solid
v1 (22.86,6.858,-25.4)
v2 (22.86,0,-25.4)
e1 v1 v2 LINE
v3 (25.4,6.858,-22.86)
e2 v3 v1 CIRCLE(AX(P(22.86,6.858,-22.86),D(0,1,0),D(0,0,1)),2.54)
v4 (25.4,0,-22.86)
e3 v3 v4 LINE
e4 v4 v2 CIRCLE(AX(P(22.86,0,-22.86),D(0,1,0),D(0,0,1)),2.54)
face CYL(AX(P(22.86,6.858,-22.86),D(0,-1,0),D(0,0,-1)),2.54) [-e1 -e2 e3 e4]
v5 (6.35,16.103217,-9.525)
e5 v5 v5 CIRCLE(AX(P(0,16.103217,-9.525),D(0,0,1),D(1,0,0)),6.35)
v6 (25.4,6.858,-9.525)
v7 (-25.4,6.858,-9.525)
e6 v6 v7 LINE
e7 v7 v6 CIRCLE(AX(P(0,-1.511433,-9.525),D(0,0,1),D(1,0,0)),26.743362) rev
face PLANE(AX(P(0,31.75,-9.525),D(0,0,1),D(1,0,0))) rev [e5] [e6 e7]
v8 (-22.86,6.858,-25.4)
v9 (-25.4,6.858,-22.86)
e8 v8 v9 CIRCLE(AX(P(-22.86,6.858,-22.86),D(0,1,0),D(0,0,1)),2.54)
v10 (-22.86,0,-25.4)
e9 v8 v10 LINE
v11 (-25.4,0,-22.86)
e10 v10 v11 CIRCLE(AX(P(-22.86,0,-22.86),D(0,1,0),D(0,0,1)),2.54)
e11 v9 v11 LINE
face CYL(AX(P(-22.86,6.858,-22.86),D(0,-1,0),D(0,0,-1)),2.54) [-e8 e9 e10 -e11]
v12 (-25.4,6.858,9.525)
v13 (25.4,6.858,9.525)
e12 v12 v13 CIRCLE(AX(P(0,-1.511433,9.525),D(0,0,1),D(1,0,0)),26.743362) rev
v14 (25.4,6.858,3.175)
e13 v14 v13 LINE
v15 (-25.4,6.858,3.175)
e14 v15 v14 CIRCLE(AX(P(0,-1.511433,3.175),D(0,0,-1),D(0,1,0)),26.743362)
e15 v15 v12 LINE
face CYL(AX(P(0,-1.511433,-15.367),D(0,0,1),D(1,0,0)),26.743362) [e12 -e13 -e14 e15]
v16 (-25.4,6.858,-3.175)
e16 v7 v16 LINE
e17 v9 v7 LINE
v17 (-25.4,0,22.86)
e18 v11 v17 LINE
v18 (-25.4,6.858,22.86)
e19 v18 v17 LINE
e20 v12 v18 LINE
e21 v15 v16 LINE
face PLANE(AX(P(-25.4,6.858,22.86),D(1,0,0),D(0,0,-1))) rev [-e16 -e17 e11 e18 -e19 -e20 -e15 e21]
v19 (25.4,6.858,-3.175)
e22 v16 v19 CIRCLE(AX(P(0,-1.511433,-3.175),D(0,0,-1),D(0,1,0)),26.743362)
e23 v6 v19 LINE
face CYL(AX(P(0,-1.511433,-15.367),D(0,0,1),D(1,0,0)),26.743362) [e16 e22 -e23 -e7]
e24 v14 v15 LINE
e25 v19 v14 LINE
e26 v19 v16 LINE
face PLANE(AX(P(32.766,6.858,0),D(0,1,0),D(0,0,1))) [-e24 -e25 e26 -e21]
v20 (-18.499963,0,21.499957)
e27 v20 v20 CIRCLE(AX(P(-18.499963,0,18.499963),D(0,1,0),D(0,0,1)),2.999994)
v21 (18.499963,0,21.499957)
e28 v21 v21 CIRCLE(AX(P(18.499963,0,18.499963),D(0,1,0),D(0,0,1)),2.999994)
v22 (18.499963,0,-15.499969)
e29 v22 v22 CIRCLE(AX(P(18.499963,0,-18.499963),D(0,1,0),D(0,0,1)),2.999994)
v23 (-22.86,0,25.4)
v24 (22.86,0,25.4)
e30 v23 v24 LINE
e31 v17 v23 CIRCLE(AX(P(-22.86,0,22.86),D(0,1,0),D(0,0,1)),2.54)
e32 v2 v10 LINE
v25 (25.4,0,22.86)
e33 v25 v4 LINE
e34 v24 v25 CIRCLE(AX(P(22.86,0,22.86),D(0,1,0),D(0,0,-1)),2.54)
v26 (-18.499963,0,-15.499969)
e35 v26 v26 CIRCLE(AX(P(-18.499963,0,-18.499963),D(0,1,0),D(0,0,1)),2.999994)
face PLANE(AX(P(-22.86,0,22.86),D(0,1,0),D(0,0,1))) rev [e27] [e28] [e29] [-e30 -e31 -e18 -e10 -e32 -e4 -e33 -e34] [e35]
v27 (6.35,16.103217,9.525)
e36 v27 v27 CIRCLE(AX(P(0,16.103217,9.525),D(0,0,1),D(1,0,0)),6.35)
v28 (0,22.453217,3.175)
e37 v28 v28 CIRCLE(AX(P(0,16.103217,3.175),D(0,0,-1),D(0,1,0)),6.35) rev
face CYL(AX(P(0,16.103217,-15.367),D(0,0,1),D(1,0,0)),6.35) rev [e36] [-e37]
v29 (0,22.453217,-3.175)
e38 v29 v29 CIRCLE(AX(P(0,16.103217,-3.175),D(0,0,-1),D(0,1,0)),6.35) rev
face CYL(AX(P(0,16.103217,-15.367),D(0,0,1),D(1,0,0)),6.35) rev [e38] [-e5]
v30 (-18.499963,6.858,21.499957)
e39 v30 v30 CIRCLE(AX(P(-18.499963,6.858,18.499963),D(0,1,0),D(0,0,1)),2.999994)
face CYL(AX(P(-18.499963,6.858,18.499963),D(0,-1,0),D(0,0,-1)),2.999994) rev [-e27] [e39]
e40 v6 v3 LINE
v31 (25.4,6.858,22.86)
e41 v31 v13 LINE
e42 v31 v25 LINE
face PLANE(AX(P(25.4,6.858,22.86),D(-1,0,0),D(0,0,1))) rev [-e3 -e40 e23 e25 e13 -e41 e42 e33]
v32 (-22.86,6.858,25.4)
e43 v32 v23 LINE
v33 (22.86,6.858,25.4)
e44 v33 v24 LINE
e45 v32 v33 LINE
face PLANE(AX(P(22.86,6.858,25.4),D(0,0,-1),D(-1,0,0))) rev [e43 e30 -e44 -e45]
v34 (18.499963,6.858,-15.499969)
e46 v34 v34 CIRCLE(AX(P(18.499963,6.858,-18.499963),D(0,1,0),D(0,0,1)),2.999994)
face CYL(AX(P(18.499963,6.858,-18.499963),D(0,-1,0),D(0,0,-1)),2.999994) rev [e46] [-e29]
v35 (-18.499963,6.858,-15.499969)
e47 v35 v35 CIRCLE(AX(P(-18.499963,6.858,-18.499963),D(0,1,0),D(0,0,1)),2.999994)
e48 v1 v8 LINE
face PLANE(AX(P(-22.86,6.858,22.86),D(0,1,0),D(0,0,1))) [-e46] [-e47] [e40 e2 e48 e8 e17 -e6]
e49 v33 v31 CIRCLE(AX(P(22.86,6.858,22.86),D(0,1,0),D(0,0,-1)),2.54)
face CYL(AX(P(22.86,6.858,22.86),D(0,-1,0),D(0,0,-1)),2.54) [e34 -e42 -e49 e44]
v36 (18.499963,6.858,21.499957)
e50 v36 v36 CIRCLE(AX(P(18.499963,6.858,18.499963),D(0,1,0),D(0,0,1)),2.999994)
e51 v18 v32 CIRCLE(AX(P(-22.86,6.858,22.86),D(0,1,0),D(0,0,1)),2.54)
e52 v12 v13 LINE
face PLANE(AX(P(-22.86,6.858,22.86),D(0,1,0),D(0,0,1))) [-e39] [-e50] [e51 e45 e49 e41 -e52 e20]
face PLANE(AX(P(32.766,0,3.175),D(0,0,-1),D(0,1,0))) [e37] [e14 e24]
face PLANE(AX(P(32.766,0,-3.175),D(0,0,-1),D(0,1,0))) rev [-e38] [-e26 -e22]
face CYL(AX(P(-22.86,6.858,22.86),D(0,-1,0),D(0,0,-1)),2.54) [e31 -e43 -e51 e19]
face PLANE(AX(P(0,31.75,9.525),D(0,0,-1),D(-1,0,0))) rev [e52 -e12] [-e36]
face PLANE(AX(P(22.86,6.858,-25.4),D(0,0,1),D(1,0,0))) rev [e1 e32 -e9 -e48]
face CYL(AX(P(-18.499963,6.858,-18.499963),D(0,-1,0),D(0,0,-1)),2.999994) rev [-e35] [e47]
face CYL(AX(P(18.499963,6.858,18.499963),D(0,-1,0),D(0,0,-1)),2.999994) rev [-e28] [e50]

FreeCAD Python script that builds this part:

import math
import FreeCAD as App
import Part
import Sketcher
Q = App.Units.Quantity

doc = App.newDocument("Part")
body = doc.addObject("PartDesign::Body", "Body")

sketch1 = doc.addObject("Sketcher::SketchObject", "Sketch")
body.addObject(sketch1)
sketch1.AttachmentSupport = (doc.XZ_Plane, [""])
sketch1.MapMode = "FlatFace"
sketch1.addGeometry(Part.LineSegment(App.Vector(-22.86, 25.4, 0), App.Vector(22.86, 25.4, 0)), False)
sketch1.addGeometry(Part.ArcOfCircle(Part.Circle(App.Vector(22.86, 22.86, 0), App.Vector(0, 0, 1), 2.54), math.radians(0), math.radians(90)), False)
sketch1.addGeometry(Part.LineSegment(App.Vector(25.4, 22.86, 0), App.Vector(25.4, -22.86, 0)), False)
sketch1.addGeometry(Part.ArcOfCircle(Part.Circle(App.Vector(22.86, -22.86, 0), App.Vector(0, 0, 1), 2.54), math.radians(-90), math.radians(0)), False)
sketch1.addGeometry(Part.LineSegment(App.Vector(22.86, -25.4, 0), App.Vector(-22.86, -25.4, 0)), False)
sketch1.addGeometry(Part.ArcOfCircle(Part.Circle(App.Vector(-22.86, -22.86, 0), App.Vector(0, 0, 1), 2.54), math.radians(-180), math.radians(-90)), False)
sketch1.addGeometry(Part.LineSegment(App.Vector(-25.4, -22.86, 0), App.Vector(-25.4, 22.86, 0)), False)
sketch1.addGeometry(Part.ArcOfCircle(Part.Circle(App.Vector(-22.86, 22.86, 0), App.Vector(0, 0, 1), 2.54), math.radians(90), math.radians(180)), False)
sketch1.addGeometry(Part.Circle(App.Vector(18.499963, 18.499963, 0), App.Vector(0, 0, 1), 2.999994), False)
sketch1.addGeometry(Part.Circle(App.Vector(-18.499963, 18.499963, 0), App.Vector(0, 0, 1), 2.999994), False)
sketch1.addGeometry(Part.Circle(App.Vector(18.499963, -18.499963, 0), App.Vector(0, 0, 1), 2.999994), False)
sketch1.addGeometry(Part.Circle(App.Vector(-18.499963, -18.499963, 0), App.Vector(0, 0, 1), 2.999994), False)
sketch1.addConstraint(Sketcher.Constraint("Tangent", 0, 2, 1, 2))
sketch1.addConstraint(Sketcher.Constraint("Tangent", 1, 1, 2, 1))
sketch1.addConstraint(Sketcher.Constraint("Tangent", 2, 2, 3, 2))
sketch1.addConstraint(Sketcher.Constraint("Tangent", 3, 1, 4, 1))
sketch1.addConstraint(Sketcher.Constraint("Tangent", 4, 2, 5, 2))
sketch1.addConstraint(Sketcher.Constraint("Tangent", 5, 1, 6, 1))
sketch1.addConstraint(Sketcher.Constraint("Tangent", 6, 2, 7, 2))
sketch1.addConstraint(Sketcher.Constraint("Tangent", 7, 1, 0, 1))
sketch1.addConstraint(Sketcher.Constraint("Horizontal", 0))
sketch1.addConstraint(Sketcher.Constraint("Vertical", 2))
sketch1.addConstraint(Sketcher.Constraint("Horizontal", 4))
sketch1.addConstraint(Sketcher.Constraint("Vertical", 6))
sketch1.addConstraint(Sketcher.Constraint("Equal", 1, 3))
sketch1.addConstraint(Sketcher.Constraint("Equal", 3, 5))
sketch1.addConstraint(Sketcher.Constraint("Equal", 5, 7))
sketch1.addConstraint(Sketcher.Constraint("Equal", 8, 9))
sketch1.addConstraint(Sketcher.Constraint("Equal", 9, 10))
sketch1.addConstraint(Sketcher.Constraint("Equal", 10, 11))
sketch1.addConstraint(Sketcher.Constraint("Symmetric", 1, 3, 5, 3, -1, 1))
sketch1.addConstraint(Sketcher.Constraint("Symmetric", 9, 3, 10, 3, -1, 1))
sketch1.addConstraint(Sketcher.Constraint("Symmetric", 8, 3, 11, 3, -1, 1))
sketch1.addConstraint(Sketcher.Constraint("Symmetric", 8, 3, 9, 3, -2))
sketch1.addConstraint(Sketcher.Constraint("Equal", 4, 2))
sketch1.addConstraint(Sketcher.Constraint("Radius", 1, Q("0.1 in")))
sketch1.addConstraint(Sketcher.Constraint("DistanceX", 0, 1, 0, 2, Q("1.8 in")))
sketch1.addConstraint(Sketcher.Constraint("Diameter", 8, Q("5.999988 mm")))
sketch1.addConstraint(Sketcher.Constraint("DistanceX", -1, 1, 8, 3, Q("18.499963 mm")))
sketch1.addConstraint(Sketcher.Constraint("DistanceY", -1, 1, 8, 3, Q("18.499963 mm")))
pad1 = doc.addObject("PartDesign::Pad", "Pad")
body.addObject(pad1)
pad1.Profile = sketch1
pad1.Length = Q("0.27 in")
pad1.Reversed = True

sketch2 = doc.addObject("Sketcher::SketchObject", "Sketch001")
body.addObject(sketch2)
sketch2.AttachmentSupport = (doc.XZ_Plane, [""])
sketch2.MapMode = "FlatFace"
sketch2.AttachmentOffset = App.Placement(App.Vector(0, 0, -0.27 * 25.4), App.Rotation())
sketch2.addGeometry(Part.LineSegment(App.Vector(-25, 10, 0), App.Vector(25, 10, 0)), False)
sketch2.addGeometry(Part.LineSegment(App.Vector(25, 10, 0), App.Vector(25, -10, 0)), False)
sketch2.addGeometry(Part.LineSegment(App.Vector(25, -10, 0), App.Vector(-25, -10, 0)), False)
sketch2.addGeometry(Part.LineSegment(App.Vector(-25, -10, 0), App.Vector(-25, 10, 0)), False)
sketch2.addConstraint(Sketcher.Constraint("Coincident", 0, 2, 1, 1))
sketch2.addConstraint(Sketcher.Constraint("Coincident", 1, 2, 2, 1))
sketch2.addConstraint(Sketcher.Constraint("Coincident", 2, 2, 3, 1))
sketch2.addConstraint(Sketcher.Constraint("Coincident", 3, 2, 0, 1))
sketch2.addConstraint(Sketcher.Constraint("Horizontal", 0))
sketch2.addConstraint(Sketcher.Constraint("Vertical", 1))
sketch2.addConstraint(Sketcher.Constraint("Horizontal", 2))
sketch2.addConstraint(Sketcher.Constraint("Vertical", 3))
sketch2.addConstraint(Sketcher.Constraint("Symmetric", 0, 2, 2, 2, -1, 1))
sketch2.addConstraint(Sketcher.Constraint("DistanceX", 0, 1, 0, 2, Q("2 in")))
sketch2.addConstraint(Sketcher.Constraint("DistanceY", 1, 2, 1, 1, Q("0.75 in")))
pad2 = doc.addObject("PartDesign::Pad", "Pad001")
body.addObject(pad2)
pad2.Profile = sketch2
pad2.Length = Q("0.98 in")
pad2.Reversed = True

sketch3 = doc.addObject("Sketcher::SketchObject", "Sketch002")
body.addObject(sketch3)
sketch3.AttachmentSupport = (doc.XY_Plane, [""])
sketch3.MapMode = "FlatFace"
sketch3.AttachmentOffset = App.Placement(App.Vector(0, 0, 0.375 * 25.4), App.Rotation())
sketch3.addGeometry(Part.ArcOfCircle(Part.Circle(App.Vector(0, 16, 0), App.Vector(0, 0, 1), 6), math.radians(0), math.radians(90)), False)
sketch3.addGeometry(Part.ArcOfCircle(Part.Circle(App.Vector(0, 16, 0), App.Vector(0, 0, 1), 6), math.radians(90), math.radians(270)), False)
sketch3.addGeometry(Part.ArcOfCircle(Part.Circle(App.Vector(0, 16, 0), App.Vector(0, 0, 1), 6), math.radians(-90), math.radians(0)), False)
sketch3.addGeometry(Part.LineSegment(App.Vector(25, 32, 0), App.Vector(-25, 32, 0)), False)
sketch3.addGeometry(Part.LineSegment(App.Vector(-25, 32, 0), App.Vector(-25, 7, 0)), False)
sketch3.addGeometry(Part.ArcOfCircle(Part.Circle(App.Vector(0, -2, 0), App.Vector(0, 0, 1), 27), math.radians(90), math.radians(162)), False)
sketch3.addGeometry(Part.ArcOfCircle(Part.Circle(App.Vector(0, -2, 0), App.Vector(0, 0, 1), 27), math.radians(18), math.radians(90)), False)
sketch3.addGeometry(Part.LineSegment(App.Vector(25, 7, 0), App.Vector(25, 32, 0)), False)
sketch3.addConstraint(Sketcher.Constraint("Tangent", 0, 2, 1, 1))
sketch3.addConstraint(Sketcher.Constraint("Tangent", 1, 2, 2, 1))
sketch3.addConstraint(Sketcher.Constraint("Tangent", 2, 2, 0, 1))
sketch3.addConstraint(Sketcher.Constraint("Coincident", 3, 2, 4, 1))
sketch3.addConstraint(Sketcher.Constraint("Coincident", 4, 2, 5, 2))
sketch3.addConstraint(Sketcher.Constraint("Tangent", 5, 1, 6, 2))
sketch3.addConstraint(Sketcher.Constraint("Coincident", 6, 1, 7, 1))
sketch3.addConstraint(Sketcher.Constraint("Coincident", 7, 2, 3, 1))
sketch3.addConstraint(Sketcher.Constraint("Horizontal", 3))
sketch3.addConstraint(Sketcher.Constraint("Vertical", 4))
sketch3.addConstraint(Sketcher.Constraint("Vertical", 7))
sketch3.addConstraint(Sketcher.Constraint("Equal", 5, 6))
sketch3.addConstraint(Sketcher.Constraint("Symmetric", 4, 2, 6, 1, -2))
sketch3.addConstraint(Sketcher.Constraint("PointOnObject", 0, 3, -2))
sketch3.addConstraint(Sketcher.Constraint("PointOnObject", 0, 2, -2))
sketch3.addConstraint(Sketcher.Constraint("PointOnObject", 1, 2, -2))
sketch3.addConstraint(Sketcher.Constraint("PointOnObject", 5, 1, -2))
sketch3.addConstraint(Sketcher.Constraint("Horizontal", 1, 3, 2, 2))
sketch3.addConstraint(Sketcher.Constraint("DistanceX", 3, 2, 3, 1, Q("2 in")))
sketch3.addConstraint(Sketcher.Constraint("Radius", 0, Q("0.25 in")))
sketch3.addConstraint(Sketcher.Constraint("DistanceY", 4, 2, 4, 1, Q("0.98 in")))
sketch3.addConstraint(Sketcher.Constraint("DistanceY", -1, 1, 3, 2, Q("1.25 in")))
sketch3.addConstraint(Sketcher.Constraint("Radius", 5, Q("26.743362 mm")))
sketch3.addConstraint(Sketcher.Constraint("DistanceY", 5, 3, 2, 3, Q("17.614651 mm")))
pocket1 = doc.addObject("PartDesign::Pocket", "Pocket")
body.addObject(pocket1)
pocket1.Profile = sketch3
pocket1.Length = Q("0.98 in")

sketch4 = doc.addObject("Sketcher::SketchObject", "Sketch003")
body.addObject(sketch4)
sketch4.AttachmentSupport = (doc.YZ_Plane, [""])
sketch4.MapMode = "FlatFace"
sketch4.AttachmentOffset = App.Placement(App.Vector(0, 0, -1 * 25.4), App.Rotation())
sketch4.addGeometry(Part.LineSegment(App.Vector(25, -3, 0), App.Vector(7, -3, 0)), False)
sketch4.addGeometry(Part.LineSegment(App.Vector(7, -3, 0), App.Vector(7, 3, 0)), False)
sketch4.addGeometry(Part.LineSegment(App.Vector(7, 3, 0), App.Vector(25, 3, 0)), False)
sketch4.addGeometry(Part.LineSegment(App.Vector(25, 3, 0), App.Vector(25, -3, 0)), False)
sketch4.addConstraint(Sketcher.Constraint("Coincident", 0, 2, 1, 1))
sketch4.addConstraint(Sketcher.Constraint("Coincident", 1, 2, 2, 1))
sketch4.addConstraint(Sketcher.Constraint("Coincident", 2, 2, 3, 1))
sketch4.addConstraint(Sketcher.Constraint("Coincident", 3, 2, 0, 1))
sketch4.addConstraint(Sketcher.Constraint("Horizontal", 0))
sketch4.addConstraint(Sketcher.Constraint("Vertical", 1))
sketch4.addConstraint(Sketcher.Constraint("Horizontal", 2))
sketch4.addConstraint(Sketcher.Constraint("Vertical", 3))
sketch4.addConstraint(Sketcher.Constraint("DistanceY", 1, 1, 1, 2, Q("0.25 in")))
sketch4.addConstraint(Sketcher.Constraint("DistanceX", -1, 1, 0, 2, Q("0.27 in")))
sketch4.addConstraint(Sketcher.Constraint("DistanceY", 0, 2, -1, 1, Q("0.125 in")))
sketch4.addConstraint(Sketcher.Constraint("DistanceX", 0, 2, 0, 1, Q("18.373929 mm")))
pocket2 = doc.addObject("PartDesign::Pocket", "Pocket001")
body.addObject(pocket2)
pocket2.Profile = sketch4
pocket2.Length = Q("2.29 in")
pocket2.Reversed = True

doc.recompute()
